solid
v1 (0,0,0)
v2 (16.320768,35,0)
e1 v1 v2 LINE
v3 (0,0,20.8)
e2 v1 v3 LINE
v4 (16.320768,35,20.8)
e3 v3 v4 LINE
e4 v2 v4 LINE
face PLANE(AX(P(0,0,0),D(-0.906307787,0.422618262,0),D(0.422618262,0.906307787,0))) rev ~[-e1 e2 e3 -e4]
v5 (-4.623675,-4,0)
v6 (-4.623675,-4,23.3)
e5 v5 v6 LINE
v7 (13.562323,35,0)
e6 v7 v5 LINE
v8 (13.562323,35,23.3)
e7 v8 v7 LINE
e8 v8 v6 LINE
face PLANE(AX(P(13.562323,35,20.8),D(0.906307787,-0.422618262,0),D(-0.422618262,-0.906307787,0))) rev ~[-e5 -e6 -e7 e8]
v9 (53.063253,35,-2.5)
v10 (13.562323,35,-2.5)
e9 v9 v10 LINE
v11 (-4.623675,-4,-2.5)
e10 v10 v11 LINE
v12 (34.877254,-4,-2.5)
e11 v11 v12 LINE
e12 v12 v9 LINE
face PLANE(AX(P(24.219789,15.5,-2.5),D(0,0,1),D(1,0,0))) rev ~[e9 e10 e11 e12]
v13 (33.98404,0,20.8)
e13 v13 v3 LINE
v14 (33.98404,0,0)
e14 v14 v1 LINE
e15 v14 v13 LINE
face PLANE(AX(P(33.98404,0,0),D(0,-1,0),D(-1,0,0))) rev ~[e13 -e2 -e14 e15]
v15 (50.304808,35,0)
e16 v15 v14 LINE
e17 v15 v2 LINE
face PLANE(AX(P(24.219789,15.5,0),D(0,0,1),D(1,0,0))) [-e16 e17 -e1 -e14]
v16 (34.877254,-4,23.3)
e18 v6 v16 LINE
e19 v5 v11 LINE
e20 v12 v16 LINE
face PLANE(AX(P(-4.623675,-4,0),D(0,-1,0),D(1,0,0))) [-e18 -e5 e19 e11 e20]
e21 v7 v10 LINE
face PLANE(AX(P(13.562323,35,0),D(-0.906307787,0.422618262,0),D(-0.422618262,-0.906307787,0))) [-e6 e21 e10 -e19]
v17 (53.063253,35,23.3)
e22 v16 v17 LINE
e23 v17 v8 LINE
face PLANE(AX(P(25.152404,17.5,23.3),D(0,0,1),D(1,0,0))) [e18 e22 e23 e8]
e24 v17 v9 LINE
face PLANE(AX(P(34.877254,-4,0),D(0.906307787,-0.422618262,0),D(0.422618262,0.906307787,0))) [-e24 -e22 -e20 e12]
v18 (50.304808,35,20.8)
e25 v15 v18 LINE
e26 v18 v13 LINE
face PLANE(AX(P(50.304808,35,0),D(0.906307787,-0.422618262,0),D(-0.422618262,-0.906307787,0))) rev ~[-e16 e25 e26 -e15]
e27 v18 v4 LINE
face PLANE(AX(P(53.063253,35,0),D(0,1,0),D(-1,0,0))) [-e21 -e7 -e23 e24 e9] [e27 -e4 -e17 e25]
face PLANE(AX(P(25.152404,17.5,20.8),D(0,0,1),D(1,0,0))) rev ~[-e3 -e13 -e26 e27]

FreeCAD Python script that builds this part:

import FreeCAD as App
import Part
import Sketcher

V = App.Vector
Q = App.Units.Quantity

doc = App.newDocument("Part")
body = doc.addObject("PartDesign::Body", "Body")

sketch1 = body.newObject("Sketcher::SketchObject", "Sketch")
sketch1.AttachmentSupport = (doc.getObject("XY_Plane"), [""])
sketch1.MapMode = "FlatFace"
sketch1.addGeometry([
    Part.LineSegment(V(33.98404, 0, 0), V(0, 0, 0)),
    Part.LineSegment(V(0, 0, 0), V(16.320768, 35, 0)),
    Part.LineSegment(V(16.320768, 35, 0), V(13.562323, 35, 0)),
    Part.LineSegment(V(13.562323, 35, 0), V(-4.623675, -4, 0)),
    Part.LineSegment(V(-4.623675, -4, 0), V(34.877254, -4, 0)),
    Part.LineSegment(V(34.877254, -4, 0), V(53.063253, 35, 0)),
    Part.LineSegment(V(53.063253, 35, 0), V(50.304808, 35, 0)),
    Part.LineSegment(V(50.304808, 35, 0), V(33.98404, 0, 0)),
], False)
sketch1.addConstraint([
    Sketcher.Constraint("Coincident", 0, 2, 1, 1),
    Sketcher.Constraint("Coincident", 1, 2, 2, 1),
    Sketcher.Constraint("Coincident", 2, 2, 3, 1),
    Sketcher.Constraint("Coincident", 3, 2, 4, 1),
    Sketcher.Constraint("Coincident", 4, 2, 5, 1),
    Sketcher.Constraint("Coincident", 5, 2, 6, 1),
    Sketcher.Constraint("Coincident", 6, 2, 7, 1),
    Sketcher.Constraint("Coincident", 7, 2, 0, 1),
    Sketcher.Constraint("Horizontal", 0),
    Sketcher.Constraint("Horizontal", 2),
    Sketcher.Constraint("Horizontal", 4),
    Sketcher.Constraint("Horizontal", 6),
    Sketcher.Constraint("Coincident", 0, 2, -1, 1),
    Sketcher.Constraint("Parallel", 1, 3),
    Sketcher.Constraint("Parallel", 3, 5),
    Sketcher.Constraint("Parallel", 5, 7),
    Sketcher.Constraint("Horizontal", 2, 2, 5, 2),
    Sketcher.Constraint("Equal", 2, 6),
    Sketcher.Constraint("Angle", 1, Q("65 deg")),
    Sketcher.Constraint("DistanceY", -1, 1, 1, 2, 35.0),
    Sketcher.Constraint("DistanceY", 3, 2, -1, 1, 4.0),
    Sketcher.Constraint("DistanceX", 0, 2, 0, 1, 33.98404),
    Sketcher.Constraint("DistanceX", 4, 1, 4, 2, 39.500929),
])
pad1 = body.newObject("PartDesign::Pad", "Pad")
pad1.Profile = sketch1
pad1.Length = 20.8

sketch2 = body.newObject("Sketcher::SketchObject", "Sketch001")
sketch2.AttachmentSupport = (doc.getObject("XY_Plane"), [""])
sketch2.MapMode = "FlatFace"
sketch2.AttachmentOffset = App.Placement(V(0, 0, 20.8), App.Rotation())
sketch2.addGeometry([
    Part.LineSegment(V(13.562323, 35, 0), V(-4.623675, -4, 0)),
    Part.LineSegment(V(-4.623675, -4, 0), V(34.877254, -4, 0)),
    Part.LineSegment(V(34.877254, -4, 0), V(53.063253, 35, 0)),
    Part.LineSegment(V(53.063253, 35, 0), V(13.562323, 35, 0)),
], False)
sketch2.addConstraint([
    Sketcher.Constraint("Coincident", 0, 2, 1, 1),
    Sketcher.Constraint("Coincident", 1, 2, 2, 1),
    Sketcher.Constraint("Coincident", 2, 2, 3, 1),
    Sketcher.Constraint("Coincident", 3, 2, 0, 1),
    Sketcher.Constraint("Horizontal", 1),
    Sketcher.Constraint("Horizontal", 3),
    Sketcher.Constraint("Parallel", 0, 2),
    Sketcher.Constraint("Angle", 0, Q("-115 deg")),
    Sketcher.Constraint("DistanceY", 0, 2, -1, 1, 4.0),
    Sketcher.Constraint("DistanceY", -1, 1, 2, 2, 35.0),
    Sketcher.Constraint("DistanceX", 1, 1, 1, 2, 39.500929),
    Sketcher.Constraint("DistanceX", 0, 2, -1, 1, 4.623675),
])
pad2 = body.newObject("PartDesign::Pad", "Pad001")
pad2.Profile = sketch2
pad2.Length = 2.5

sketch3 = body.newObject("Sketcher::SketchObject", "Sketch002")
sketch3.AttachmentSupport = (doc.getObject("XY_Plane"), [""])
sketch3.MapMode = "FlatFace"
sketch3.addGeometry([
    Part.LineSegment(V(13.562323, 35, 0), V(-4.623675, -4, 0)),
    Part.LineSegment(V(-4.623675, -4, 0), V(34.877254, -4, 0)),
    Part.LineSegment(V(34.877254, -4, 0), V(53.063253, 35, 0)),
    Part.LineSegment(V(53.063253, 35, 0), V(13.562323, 35, 0)),
], False)
sketch3.addConstraint([
    Sketcher.Constraint("Coincident", 0, 2, 1, 1),
    Sketcher.Constraint("Coincident", 1, 2, 2, 1),
    Sketcher.Constraint("Coincident", 2, 2, 3, 1),
    Sketcher.Constraint("Coincident", 3, 2, 0, 1),
    Sketcher.Constraint("Horizontal", 1),
    Sketcher.Constraint("Horizontal", 3),
    Sketcher.Constraint("Parallel", 0, 2),
    Sketcher.Constraint("Angle", 0, Q("-115 deg")),
    Sketcher.Constraint("DistanceY", 0, 2, -1, 1, 4.0),
    Sketcher.Constraint("DistanceY", -1, 1, 2, 2, 35.0),
    Sketcher.Constraint("DistanceX", 1, 1, 1, 2, 39.500929),
    Sketcher.Constraint("DistanceX", 0, 2, -1, 1, 4.623675),
])
pad3 = body.newObject("PartDesign::Pad", "Pad002")
pad3.Profile = sketch3
pad3.Length = 2.5
pad3.Reversed = True

doc.recompute()
